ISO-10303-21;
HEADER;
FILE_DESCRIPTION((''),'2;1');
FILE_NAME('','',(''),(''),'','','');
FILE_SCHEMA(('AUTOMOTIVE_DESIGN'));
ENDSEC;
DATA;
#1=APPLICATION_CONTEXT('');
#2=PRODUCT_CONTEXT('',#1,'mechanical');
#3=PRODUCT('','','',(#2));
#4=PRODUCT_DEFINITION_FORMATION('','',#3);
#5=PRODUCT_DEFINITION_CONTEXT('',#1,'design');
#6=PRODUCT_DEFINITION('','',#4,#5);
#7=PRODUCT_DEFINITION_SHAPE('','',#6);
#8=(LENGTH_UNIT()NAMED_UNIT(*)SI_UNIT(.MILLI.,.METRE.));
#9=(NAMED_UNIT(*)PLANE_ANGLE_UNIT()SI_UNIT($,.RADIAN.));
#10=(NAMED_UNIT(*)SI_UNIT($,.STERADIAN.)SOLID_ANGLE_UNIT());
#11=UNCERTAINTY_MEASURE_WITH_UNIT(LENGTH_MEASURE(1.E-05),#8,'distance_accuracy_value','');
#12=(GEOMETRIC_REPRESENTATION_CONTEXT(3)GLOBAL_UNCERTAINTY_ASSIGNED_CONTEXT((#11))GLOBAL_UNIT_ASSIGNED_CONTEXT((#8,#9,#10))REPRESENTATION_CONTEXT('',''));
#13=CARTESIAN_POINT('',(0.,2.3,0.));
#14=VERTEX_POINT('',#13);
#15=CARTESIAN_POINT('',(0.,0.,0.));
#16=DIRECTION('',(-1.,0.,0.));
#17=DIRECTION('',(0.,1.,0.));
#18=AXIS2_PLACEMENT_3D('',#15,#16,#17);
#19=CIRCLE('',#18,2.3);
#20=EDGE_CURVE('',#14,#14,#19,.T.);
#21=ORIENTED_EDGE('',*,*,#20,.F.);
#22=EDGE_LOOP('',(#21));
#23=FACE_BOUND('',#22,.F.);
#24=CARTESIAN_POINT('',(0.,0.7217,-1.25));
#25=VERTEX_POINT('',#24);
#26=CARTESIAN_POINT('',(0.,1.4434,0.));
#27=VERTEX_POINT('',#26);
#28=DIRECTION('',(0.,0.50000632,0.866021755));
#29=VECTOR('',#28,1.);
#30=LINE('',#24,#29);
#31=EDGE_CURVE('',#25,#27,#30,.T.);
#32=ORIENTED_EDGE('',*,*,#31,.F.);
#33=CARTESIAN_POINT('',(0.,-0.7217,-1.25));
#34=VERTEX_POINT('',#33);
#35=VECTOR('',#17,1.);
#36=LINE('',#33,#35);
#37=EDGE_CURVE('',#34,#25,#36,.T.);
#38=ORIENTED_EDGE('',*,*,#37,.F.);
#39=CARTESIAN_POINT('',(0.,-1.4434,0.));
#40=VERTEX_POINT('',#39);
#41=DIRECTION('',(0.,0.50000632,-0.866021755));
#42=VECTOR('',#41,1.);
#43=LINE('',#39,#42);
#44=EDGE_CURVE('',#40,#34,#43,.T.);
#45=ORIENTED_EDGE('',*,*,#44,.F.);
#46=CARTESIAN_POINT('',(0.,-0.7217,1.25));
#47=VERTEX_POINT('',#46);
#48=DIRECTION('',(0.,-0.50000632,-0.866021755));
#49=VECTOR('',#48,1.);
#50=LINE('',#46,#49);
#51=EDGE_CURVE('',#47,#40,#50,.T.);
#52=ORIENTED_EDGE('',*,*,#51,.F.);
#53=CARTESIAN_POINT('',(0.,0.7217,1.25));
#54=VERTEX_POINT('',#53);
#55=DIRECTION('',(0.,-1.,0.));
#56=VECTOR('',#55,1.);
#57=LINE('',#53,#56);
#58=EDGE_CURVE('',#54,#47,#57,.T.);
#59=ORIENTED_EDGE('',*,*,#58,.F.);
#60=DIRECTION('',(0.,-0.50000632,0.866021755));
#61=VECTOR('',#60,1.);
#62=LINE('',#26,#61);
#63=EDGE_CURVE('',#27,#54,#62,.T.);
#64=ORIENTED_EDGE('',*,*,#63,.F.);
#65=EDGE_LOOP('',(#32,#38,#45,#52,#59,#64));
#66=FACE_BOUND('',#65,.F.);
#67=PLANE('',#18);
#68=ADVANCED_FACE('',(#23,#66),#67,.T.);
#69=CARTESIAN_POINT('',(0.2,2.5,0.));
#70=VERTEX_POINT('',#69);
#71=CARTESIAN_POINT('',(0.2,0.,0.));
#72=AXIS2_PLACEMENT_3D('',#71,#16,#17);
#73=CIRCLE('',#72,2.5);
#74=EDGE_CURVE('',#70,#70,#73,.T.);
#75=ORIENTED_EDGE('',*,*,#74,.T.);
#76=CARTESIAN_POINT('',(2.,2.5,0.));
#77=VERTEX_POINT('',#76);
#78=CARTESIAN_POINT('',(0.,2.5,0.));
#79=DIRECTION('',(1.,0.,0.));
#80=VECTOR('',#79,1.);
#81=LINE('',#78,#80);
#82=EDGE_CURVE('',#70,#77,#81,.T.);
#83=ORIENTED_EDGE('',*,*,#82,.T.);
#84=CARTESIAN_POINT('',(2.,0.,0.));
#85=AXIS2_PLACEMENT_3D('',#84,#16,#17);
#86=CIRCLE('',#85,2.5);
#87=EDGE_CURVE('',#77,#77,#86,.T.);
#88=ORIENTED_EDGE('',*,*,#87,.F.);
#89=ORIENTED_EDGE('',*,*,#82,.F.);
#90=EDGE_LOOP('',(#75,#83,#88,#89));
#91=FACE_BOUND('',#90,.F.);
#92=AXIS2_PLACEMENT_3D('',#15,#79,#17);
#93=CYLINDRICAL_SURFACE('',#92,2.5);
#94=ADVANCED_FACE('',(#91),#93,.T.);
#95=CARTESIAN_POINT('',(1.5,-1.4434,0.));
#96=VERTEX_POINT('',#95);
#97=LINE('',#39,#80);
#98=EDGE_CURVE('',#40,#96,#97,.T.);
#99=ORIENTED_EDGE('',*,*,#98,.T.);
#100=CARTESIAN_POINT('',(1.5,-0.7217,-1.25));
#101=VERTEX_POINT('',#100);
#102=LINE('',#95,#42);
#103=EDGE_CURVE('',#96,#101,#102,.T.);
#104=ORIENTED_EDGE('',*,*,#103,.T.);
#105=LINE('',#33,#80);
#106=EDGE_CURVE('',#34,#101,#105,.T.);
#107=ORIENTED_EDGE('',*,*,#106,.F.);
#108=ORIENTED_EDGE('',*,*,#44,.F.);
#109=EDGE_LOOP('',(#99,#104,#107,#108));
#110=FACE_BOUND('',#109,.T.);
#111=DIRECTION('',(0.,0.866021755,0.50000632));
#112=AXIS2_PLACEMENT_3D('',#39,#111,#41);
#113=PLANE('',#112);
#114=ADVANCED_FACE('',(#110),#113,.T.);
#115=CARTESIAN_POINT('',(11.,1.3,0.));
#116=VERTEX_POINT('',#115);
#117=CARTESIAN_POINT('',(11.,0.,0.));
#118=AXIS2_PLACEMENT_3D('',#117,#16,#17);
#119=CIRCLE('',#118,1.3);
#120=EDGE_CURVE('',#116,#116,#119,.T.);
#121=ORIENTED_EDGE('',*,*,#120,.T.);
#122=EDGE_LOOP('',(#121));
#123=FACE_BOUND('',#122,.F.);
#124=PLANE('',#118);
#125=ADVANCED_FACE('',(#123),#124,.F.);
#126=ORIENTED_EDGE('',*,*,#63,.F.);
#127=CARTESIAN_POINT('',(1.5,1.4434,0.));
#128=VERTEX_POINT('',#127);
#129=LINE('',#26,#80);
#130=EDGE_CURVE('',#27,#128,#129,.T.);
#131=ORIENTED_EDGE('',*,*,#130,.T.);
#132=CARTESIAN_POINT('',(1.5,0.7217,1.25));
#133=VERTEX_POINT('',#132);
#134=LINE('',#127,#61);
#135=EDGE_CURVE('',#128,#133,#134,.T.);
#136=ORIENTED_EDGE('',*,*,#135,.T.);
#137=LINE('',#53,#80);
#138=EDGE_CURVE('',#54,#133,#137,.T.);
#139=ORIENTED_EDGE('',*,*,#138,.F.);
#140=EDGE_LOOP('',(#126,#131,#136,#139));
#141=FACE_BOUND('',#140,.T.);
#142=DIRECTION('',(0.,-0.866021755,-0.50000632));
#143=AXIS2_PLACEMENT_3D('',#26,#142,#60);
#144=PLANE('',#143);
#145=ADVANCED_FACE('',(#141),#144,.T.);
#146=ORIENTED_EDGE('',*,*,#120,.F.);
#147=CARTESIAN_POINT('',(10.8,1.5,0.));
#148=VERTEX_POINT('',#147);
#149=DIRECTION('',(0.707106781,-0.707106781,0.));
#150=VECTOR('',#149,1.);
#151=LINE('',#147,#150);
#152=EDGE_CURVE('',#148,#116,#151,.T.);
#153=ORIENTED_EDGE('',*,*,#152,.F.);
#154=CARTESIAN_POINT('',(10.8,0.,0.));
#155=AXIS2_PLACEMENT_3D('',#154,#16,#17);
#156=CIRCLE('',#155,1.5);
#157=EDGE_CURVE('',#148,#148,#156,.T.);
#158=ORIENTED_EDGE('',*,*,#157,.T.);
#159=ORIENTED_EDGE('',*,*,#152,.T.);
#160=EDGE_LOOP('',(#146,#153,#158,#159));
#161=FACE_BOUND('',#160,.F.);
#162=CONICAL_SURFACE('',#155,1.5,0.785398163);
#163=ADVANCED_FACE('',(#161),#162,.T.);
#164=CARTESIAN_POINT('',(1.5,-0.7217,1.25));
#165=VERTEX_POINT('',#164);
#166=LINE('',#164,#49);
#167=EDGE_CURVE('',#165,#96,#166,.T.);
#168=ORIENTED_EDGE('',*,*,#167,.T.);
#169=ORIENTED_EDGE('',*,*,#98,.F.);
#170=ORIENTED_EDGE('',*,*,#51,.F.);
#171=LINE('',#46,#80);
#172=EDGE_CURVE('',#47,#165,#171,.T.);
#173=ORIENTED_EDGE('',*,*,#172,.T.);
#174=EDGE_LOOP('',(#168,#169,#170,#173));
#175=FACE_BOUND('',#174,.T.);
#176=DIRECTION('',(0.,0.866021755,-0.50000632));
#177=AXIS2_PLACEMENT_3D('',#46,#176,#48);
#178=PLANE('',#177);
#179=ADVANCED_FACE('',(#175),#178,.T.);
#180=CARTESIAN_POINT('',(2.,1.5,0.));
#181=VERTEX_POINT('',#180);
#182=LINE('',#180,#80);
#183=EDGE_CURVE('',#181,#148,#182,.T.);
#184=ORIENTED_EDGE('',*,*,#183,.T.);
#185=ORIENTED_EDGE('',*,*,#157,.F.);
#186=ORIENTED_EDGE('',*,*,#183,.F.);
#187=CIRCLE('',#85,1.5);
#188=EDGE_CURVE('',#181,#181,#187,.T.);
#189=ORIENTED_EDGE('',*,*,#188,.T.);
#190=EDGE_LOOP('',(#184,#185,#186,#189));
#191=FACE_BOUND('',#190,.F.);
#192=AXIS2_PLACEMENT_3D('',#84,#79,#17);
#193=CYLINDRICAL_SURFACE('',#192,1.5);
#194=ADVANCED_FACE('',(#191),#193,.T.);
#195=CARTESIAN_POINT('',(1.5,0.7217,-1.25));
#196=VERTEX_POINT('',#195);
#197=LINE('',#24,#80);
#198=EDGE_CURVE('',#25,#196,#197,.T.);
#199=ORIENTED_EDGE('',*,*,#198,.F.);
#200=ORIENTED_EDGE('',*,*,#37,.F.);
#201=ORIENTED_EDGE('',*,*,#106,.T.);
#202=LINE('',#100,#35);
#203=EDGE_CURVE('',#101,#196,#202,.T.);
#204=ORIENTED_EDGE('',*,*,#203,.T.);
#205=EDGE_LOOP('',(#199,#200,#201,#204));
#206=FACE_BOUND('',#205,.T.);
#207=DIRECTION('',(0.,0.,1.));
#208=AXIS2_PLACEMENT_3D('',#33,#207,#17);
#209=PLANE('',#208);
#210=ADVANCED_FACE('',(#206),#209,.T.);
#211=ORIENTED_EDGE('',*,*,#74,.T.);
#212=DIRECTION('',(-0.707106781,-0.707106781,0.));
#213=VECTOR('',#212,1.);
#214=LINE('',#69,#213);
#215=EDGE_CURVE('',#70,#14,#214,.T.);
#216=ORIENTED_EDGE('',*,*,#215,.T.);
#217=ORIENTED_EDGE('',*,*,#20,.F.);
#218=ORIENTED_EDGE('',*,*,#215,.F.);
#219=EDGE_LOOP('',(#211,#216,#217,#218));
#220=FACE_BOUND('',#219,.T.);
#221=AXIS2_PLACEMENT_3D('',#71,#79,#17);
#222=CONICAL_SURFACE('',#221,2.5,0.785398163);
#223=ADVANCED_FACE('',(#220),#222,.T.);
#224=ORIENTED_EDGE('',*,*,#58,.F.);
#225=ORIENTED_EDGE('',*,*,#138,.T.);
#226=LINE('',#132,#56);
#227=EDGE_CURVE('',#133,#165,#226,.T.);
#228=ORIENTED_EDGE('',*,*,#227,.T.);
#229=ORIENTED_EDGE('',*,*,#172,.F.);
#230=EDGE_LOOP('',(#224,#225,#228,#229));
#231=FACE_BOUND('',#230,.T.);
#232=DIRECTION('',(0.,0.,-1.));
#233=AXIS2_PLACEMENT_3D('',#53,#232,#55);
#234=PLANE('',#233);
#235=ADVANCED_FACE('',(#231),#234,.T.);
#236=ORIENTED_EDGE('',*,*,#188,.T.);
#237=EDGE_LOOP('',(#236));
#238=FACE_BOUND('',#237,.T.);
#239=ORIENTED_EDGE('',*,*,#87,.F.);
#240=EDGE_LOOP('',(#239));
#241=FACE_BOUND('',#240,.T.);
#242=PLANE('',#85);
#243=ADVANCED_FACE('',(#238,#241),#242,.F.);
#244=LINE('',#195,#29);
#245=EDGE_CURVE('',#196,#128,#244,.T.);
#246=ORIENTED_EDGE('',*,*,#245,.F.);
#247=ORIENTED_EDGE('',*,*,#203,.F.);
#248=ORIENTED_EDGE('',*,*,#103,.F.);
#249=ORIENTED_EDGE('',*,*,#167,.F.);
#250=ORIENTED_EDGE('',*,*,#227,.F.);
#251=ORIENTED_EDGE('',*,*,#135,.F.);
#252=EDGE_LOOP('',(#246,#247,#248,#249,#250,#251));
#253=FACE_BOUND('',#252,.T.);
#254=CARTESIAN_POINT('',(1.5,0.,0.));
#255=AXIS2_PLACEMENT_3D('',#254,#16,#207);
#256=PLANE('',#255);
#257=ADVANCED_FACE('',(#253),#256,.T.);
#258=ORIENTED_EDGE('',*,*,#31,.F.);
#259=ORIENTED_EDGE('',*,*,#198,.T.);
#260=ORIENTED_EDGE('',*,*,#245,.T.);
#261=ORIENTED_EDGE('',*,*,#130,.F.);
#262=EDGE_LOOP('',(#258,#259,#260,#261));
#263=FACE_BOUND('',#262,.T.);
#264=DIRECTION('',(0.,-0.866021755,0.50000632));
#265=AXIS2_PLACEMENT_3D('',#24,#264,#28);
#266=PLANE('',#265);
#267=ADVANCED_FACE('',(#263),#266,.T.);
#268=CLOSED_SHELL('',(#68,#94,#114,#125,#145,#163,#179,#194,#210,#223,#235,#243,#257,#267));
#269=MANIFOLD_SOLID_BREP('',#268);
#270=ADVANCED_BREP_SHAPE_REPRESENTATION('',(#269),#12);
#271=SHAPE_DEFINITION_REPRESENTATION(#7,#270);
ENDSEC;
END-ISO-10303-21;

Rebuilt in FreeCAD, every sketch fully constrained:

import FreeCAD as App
import Part
import Sketcher

V = App.Vector
Q = App.Units.Quantity


def edges_at(feature, points):
    """Names of the edges that pass closest to the given points."""
    edges = feature.Shape.Edges
    near = lambda p: min(range(len(edges)), key=lambda i: edges[i].distToShape(Part.Vertex(*p))[0])
    return sorted({f"Edge{near(p) + 1}" for p in points})


def add_polygon(sketch, points):
    """Adds a closed chain of lines whose ends are joined by coincident constraints."""
    first, n = sketch.GeometryCount, len(points)
    for a, b in zip(points, points[1:] + points[:1]):
        sketch.addGeometry(Part.LineSegment(App.Vector(*a, 0), App.Vector(*b, 0)), False)
    for i in range(n):
        sketch.addConstraint(Sketcher.Constraint("Coincident", first + i, 2, first + (i + 1) % n, 1))

doc = App.newDocument("Part")
params = doc.addObject("Spreadsheet::Sheet", "Params")
for row, (alias, value) in enumerate([
    ("sketch1_width", "9 mm"),
    ("sketch1_width2", "2 mm"),
    ("sketch1_height", "2.5 mm"),
    ("sketch1_height2", "1.5 mm"),
    ("revolution_angle", "360 deg"),
    ("chamfer_size", "0.2 mm"),
    ("pocket1_length", "1.5 mm"),
    ("chamfer2_size", "0.2 mm"),
], start=1):
    params.set(f"A{row}", alias)
    params.set(f"B{row}", "=" + value)
    params.setAlias(f"B{row}", alias)

body = doc.addObject("PartDesign::Body", "Body")

# Sketch on XY plane
sketch1 = body.newObject("Sketcher::SketchObject", "Sketch")
sketch1.AttachmentSupport = (doc.getObject("XY_Plane"), [""])
sketch1.MapMode = "FlatFace"
add_polygon(sketch1, [(0, 2.5), (0, 0), (11, 0), (11, 1.5), (2, 1.5), (2, 2.5)])  # lines 0-5
sketch1.addConstraint(Sketcher.Constraint("Vertical", 0))
sketch1.addConstraint(Sketcher.Constraint("Horizontal", 1))
sketch1.addConstraint(Sketcher.Constraint("Vertical", 2))
sketch1.addConstraint(Sketcher.Constraint("Horizontal", 3))
sketch1.addConstraint(Sketcher.Constraint("Vertical", 4))
sketch1.addConstraint(Sketcher.Constraint("Horizontal", 5))
sketch1.addConstraint(Sketcher.Constraint("Coincident", 0, 2, -1, 1))
sketch1.addConstraint(Sketcher.Constraint("DistanceX", 3, 2, 3, 1, Q("9 mm")))
sketch1.addConstraint(Sketcher.Constraint("DistanceX", 5, 2, 5, 1, Q("2 mm")))
sketch1.addConstraint(Sketcher.Constraint("DistanceY", 0, 2, 0, 1, Q("2.5 mm")))
sketch1.addConstraint(Sketcher.Constraint("DistanceY", 2, 1, 2, 2, Q("1.5 mm")))
sketch1.setExpression("Constraints[13]", "Params.sketch1_width")
sketch1.setExpression("Constraints[14]", "Params.sketch1_width2")
sketch1.setExpression("Constraints[15]", "Params.sketch1_height")
sketch1.setExpression("Constraints[16]", "Params.sketch1_height2")
revolution = body.newObject("PartDesign::Revolution", "Revolution")
revolution.Profile = sketch1
revolution.ReferenceAxis = (sketch1, ["H_Axis"])
revolution.setExpression("Angle", "Params.revolution_angle")
doc.recompute()

chamfer = body.newObject("PartDesign::Chamfer", "Chamfer")
chamfer.Base = (revolution, edges_at(revolution, [(11, -1.5, 0)]))
chamfer.setExpression("Size", "Params.chamfer_size")

# Sketch on YZ plane
sketch2 = body.newObject("Sketcher::SketchObject", "Sketch001")
sketch2.AttachmentSupport = (doc.getObject("YZ_Plane"), [""])
sketch2.MapMode = "FlatFace"
add_polygon(sketch2, [(1.4434, 0), (0.7217, -1.25), (-0.7217, -1.25), (-1.4434, 0), (-0.7217, 1.25), (0.7217, 1.25)])  # lines 0-5
sketch2.addConstraint(Sketcher.Constraint("Horizontal", 1))
sketch2.addConstraint(Sketcher.Constraint("Horizontal", 4))
sketch2.addConstraint(Sketcher.Constraint("Symmetric", 0, 2, 3, 2, -1, 1))
sketch2.addConstraint(Sketcher.Constraint("Symmetric", 2, 2, 5, 2, -1, 1))
sketch2.addConstraint(Sketcher.Constraint("PointOnObject", 2, 2, -1))
sketch2.addConstraint(Sketcher.Constraint("Parallel", 2, 5))
sketch2.addConstraint(Sketcher.Constraint("Vertical", 1, 2, 3, 2))
sketch2.addConstraint(Sketcher.Constraint("DistanceY", 1, 2, 3, 2, Q("2.5 mm")))
sketch2.addConstraint(Sketcher.Constraint("Angle", 0, Q("-120.0004 deg")))
sketch2.addConstraint(Sketcher.Constraint("DistanceX", 1, 2, 1, 1, Q("1.4434 mm")))
pocket1 = body.newObject("PartDesign::Pocket", "Pocket")
pocket1.Profile = sketch2
pocket1.setExpression("Length", "Params.pocket1_length")
pocket1.Reversed = True
doc.recompute()

chamfer2 = body.newObject("PartDesign::Chamfer", "Chamfer001")
chamfer2.Base = (pocket1, edges_at(pocket1, [(0, -2.5, 0)]))
chamfer2.setExpression("Size", "Params.chamfer2_size")

doc.recompute()
